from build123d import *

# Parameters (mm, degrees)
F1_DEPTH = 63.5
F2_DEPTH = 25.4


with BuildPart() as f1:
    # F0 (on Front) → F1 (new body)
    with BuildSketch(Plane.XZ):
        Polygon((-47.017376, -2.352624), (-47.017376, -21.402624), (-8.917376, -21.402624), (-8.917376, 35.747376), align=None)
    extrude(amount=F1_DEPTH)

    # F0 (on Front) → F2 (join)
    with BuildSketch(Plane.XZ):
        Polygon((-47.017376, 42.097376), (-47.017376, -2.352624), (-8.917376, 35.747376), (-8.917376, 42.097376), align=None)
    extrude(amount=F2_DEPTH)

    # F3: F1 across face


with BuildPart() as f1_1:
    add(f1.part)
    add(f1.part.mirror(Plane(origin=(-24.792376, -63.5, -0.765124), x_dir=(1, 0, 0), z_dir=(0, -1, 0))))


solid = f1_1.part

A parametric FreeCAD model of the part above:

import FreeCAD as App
import Part
import Sketcher
from FreeCAD import Vector
Q = App.Units.Quantity


def add_polygon(sketch, points):
    """Adds a closed chain of lines whose ends are joined by coincident constraints."""
    first, n = sketch.GeometryCount, len(points)
    for a, b in zip(points, points[1:] + points[:1]):
        sketch.addGeometry(Part.LineSegment(App.Vector(*a, 0), App.Vector(*b, 0)), False)
    for i in range(n):
        sketch.addConstraint(Sketcher.Constraint("Coincident", first + i, 2, first + (i + 1) % n, 1))

doc = App.newDocument("Part")
body = doc.addObject("PartDesign::Body", "Body")

sketch1 = doc.addObject("Sketcher::SketchObject", "Sketch")
body.addObject(sketch1)
sketch1.AttachmentSupport = (doc.XZ_Plane, [""])
sketch1.MapMode = "FlatFace"
add_polygon(sketch1, [(-47, -2), (-47, -21), (-9, -21), (-9, 36)])
sketch1.addConstraint([
    Sketcher.Constraint("Vertical", 0),
    Sketcher.Constraint("Horizontal", 1),
    Sketcher.Constraint("Vertical", 2),
    Sketcher.Constraint("DistanceX", 1, 1, 1, 2, Q("1.5 in")),
    Sketcher.Constraint("Angle", 3, Q("-135 deg")),
    Sketcher.Constraint("DistanceY", 0, 2, 0, 1, Q("0.75 in")),
    Sketcher.Constraint("DistanceX", 0, 2, -1, 1, 47.017376),
    Sketcher.Constraint("DistanceY", 0, 2, -1, 1, 21.402624),
])
pad1 = doc.addObject("PartDesign::Pad", "Pad")
body.addObject(pad1)
pad1.Profile = sketch1
pad1.Length = Q("2.5 in")

sketch2 = doc.addObject("Sketcher::SketchObject", "Sketch001")
body.addObject(sketch2)
sketch2.AttachmentSupport = (doc.XZ_Plane, [""])
sketch2.MapMode = "FlatFace"
add_polygon(sketch2, [(-47, 42), (-47, -2), (-9, 36), (-9, 42)])
sketch2.addConstraint([
    Sketcher.Constraint("Vertical", 0),
    Sketcher.Constraint("Vertical", 2),
    Sketcher.Constraint("Horizontal", 3),
    Sketcher.Constraint("DistanceX", 3, 2, 3, 1, Q("1.5 in")),
    Sketcher.Constraint("Angle", 1, Q("45 deg")),
    Sketcher.Constraint("DistanceY", 0, 2, 0, 1, Q("1.75 in")),
    Sketcher.Constraint("DistanceX", 0, 2, -1, 1, 47.017376),
    Sketcher.Constraint("DistanceY", 0, 2, -1, 1, 2.352624),
])
pad2 = doc.addObject("PartDesign::Pad", "Pad001")
body.addObject(pad2)
pad2.Profile = sketch2
pad2.Length = Q("1 in")
body2 = doc.addObject("PartDesign::Body", "Body001")
doc.recompute()

body2.BaseFeature = body
doc.recompute()

mirroring = doc.addObject("Part::Mirroring", "Mirroring")
mirroring.Source = body
mirroring.Base = Vector(-24.792376, -63.5, -0.765124)
mirroring.Normal = Vector(0, -1, 0)
body3 = doc.addObject("PartDesign::Body", "Body002")
body3.BaseFeature = mirroring
boolean = doc.addObject("PartDesign::Boolean", "Boolean")
body2.addObject(boolean)
boolean.Type = "Fuse"
boolean.addObjects([body3])
doc.recompute()
mirroring.Visibility = False

doc.recompute()
